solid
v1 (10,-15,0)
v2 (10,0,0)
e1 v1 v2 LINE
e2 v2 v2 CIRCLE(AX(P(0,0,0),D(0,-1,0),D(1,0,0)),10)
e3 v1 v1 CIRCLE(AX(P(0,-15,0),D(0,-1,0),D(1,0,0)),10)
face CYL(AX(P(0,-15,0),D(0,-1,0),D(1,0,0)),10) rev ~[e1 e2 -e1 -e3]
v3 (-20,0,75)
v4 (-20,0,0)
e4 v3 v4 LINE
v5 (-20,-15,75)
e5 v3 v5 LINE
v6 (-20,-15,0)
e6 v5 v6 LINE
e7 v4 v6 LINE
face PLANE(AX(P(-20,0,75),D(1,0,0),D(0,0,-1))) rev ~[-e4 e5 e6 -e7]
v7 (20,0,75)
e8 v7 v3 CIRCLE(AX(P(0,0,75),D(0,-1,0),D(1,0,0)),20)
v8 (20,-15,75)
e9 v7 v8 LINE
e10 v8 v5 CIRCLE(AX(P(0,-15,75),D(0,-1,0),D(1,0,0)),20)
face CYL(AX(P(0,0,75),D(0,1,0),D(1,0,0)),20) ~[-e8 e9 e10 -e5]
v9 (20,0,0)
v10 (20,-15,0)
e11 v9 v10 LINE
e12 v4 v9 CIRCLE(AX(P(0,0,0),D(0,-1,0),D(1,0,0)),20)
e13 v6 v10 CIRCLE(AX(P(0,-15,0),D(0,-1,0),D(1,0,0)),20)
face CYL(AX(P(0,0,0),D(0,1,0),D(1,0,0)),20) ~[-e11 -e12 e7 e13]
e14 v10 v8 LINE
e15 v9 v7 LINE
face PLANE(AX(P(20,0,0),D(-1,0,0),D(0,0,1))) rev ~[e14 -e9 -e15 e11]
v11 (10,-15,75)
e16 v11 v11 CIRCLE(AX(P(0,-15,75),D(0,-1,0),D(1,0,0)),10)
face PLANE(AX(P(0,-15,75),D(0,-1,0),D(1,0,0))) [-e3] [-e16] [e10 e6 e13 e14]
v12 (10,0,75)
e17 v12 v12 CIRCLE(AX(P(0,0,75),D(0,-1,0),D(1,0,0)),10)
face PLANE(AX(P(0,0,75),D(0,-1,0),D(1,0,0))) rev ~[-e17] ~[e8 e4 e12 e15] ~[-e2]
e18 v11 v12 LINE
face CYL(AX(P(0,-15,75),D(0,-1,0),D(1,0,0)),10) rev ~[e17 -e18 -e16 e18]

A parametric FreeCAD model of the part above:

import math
import FreeCAD as App
import Part
import Sketcher
from FreeCAD import Vector

doc = App.newDocument("Part")
body = doc.addObject("PartDesign::Body", "Body")

# Sketch on XZ plane
sketch1 = doc.addObject("Sketcher::SketchObject", "Sketch")
body.addObject(sketch1)
sketch1.AttachmentSupport = (doc.XZ_Plane, [""])
sketch1.MapMode = "FlatFace"
sketch1.addGeometry(Part.ArcOfCircle(Part.Circle(Vector(0, 75, 0), Vector(0, 0, 1), 20), math.radians(0), math.radians(180)), False)
sketch1.addGeometry(Part.LineSegment(Vector(-20, 75, 0), Vector(-20, 0, 0)), False)
sketch1.addGeometry(Part.ArcOfCircle(Part.Circle(Vector(0, 0, 0), Vector(0, 0, 1), 20), math.radians(180), math.radians(360)), False)
sketch1.addGeometry(Part.LineSegment(Vector(20, 0, 0), Vector(20, 75, 0)), False)
sketch1.addConstraint(Sketcher.Constraint("Tangent", 0, 2, 1, 1))
sketch1.addConstraint(Sketcher.Constraint("Tangent", 1, 2, 2, 1))
sketch1.addConstraint(Sketcher.Constraint("Tangent", 2, 2, 3, 1))
sketch1.addConstraint(Sketcher.Constraint("Tangent", 3, 2, 0, 1))
sketch1.addConstraint(Sketcher.Constraint("Vertical", 1))
sketch1.addConstraint(Sketcher.Constraint("Vertical", 3))
sketch1.addConstraint(Sketcher.Constraint("Coincident", 2, 3, -1, 1))
sketch1.addConstraint(Sketcher.Constraint("Radius", 0, 20.0))
sketch1.addConstraint(Sketcher.Constraint("DistanceY", 1, 2, 1, 1, 75.0))
pad1 = doc.addObject("PartDesign::Pad", "Pad")
body.addObject(pad1)
pad1.Profile = sketch1
pad1.Length = 15

# Sketch on XZ plane
sketch2 = doc.addObject("Sketcher::SketchObject", "Sketch001")
body.addObject(sketch2)
sketch2.AttachmentSupport = (doc.XZ_Plane, [""])
sketch2.MapMode = "FlatFace"
sketch2.AttachmentOffset = App.Placement(Vector(0, 0, 15), App.Rotation())
sketch2.addGeometry(Part.Circle(Vector(0, 75, 0), Vector(0, 0, 1), 10), False)
sketch2.addGeometry(Part.Circle(Vector(0, 0, 0), Vector(0, 0, 1), 10), False)
sketch2.addConstraint(Sketcher.Constraint("Coincident", 1, 3, -1, 1))
sketch2.addConstraint(Sketcher.Constraint("Equal", 0, 1))
sketch2.addConstraint(Sketcher.Constraint("PointOnObject", 0, 3, -2))
sketch2.addConstraint(Sketcher.Constraint("Diameter", 0, 20.0))
sketch2.addConstraint(Sketcher.Constraint("DistanceY", -1, 1, 0, 3, 75.0))
pocket1 = doc.addObject("PartDesign::Pocket", "Pocket")
body.addObject(pocket1)
pocket1.Profile = sketch2
pocket1.Length = 25

doc.recompute()
